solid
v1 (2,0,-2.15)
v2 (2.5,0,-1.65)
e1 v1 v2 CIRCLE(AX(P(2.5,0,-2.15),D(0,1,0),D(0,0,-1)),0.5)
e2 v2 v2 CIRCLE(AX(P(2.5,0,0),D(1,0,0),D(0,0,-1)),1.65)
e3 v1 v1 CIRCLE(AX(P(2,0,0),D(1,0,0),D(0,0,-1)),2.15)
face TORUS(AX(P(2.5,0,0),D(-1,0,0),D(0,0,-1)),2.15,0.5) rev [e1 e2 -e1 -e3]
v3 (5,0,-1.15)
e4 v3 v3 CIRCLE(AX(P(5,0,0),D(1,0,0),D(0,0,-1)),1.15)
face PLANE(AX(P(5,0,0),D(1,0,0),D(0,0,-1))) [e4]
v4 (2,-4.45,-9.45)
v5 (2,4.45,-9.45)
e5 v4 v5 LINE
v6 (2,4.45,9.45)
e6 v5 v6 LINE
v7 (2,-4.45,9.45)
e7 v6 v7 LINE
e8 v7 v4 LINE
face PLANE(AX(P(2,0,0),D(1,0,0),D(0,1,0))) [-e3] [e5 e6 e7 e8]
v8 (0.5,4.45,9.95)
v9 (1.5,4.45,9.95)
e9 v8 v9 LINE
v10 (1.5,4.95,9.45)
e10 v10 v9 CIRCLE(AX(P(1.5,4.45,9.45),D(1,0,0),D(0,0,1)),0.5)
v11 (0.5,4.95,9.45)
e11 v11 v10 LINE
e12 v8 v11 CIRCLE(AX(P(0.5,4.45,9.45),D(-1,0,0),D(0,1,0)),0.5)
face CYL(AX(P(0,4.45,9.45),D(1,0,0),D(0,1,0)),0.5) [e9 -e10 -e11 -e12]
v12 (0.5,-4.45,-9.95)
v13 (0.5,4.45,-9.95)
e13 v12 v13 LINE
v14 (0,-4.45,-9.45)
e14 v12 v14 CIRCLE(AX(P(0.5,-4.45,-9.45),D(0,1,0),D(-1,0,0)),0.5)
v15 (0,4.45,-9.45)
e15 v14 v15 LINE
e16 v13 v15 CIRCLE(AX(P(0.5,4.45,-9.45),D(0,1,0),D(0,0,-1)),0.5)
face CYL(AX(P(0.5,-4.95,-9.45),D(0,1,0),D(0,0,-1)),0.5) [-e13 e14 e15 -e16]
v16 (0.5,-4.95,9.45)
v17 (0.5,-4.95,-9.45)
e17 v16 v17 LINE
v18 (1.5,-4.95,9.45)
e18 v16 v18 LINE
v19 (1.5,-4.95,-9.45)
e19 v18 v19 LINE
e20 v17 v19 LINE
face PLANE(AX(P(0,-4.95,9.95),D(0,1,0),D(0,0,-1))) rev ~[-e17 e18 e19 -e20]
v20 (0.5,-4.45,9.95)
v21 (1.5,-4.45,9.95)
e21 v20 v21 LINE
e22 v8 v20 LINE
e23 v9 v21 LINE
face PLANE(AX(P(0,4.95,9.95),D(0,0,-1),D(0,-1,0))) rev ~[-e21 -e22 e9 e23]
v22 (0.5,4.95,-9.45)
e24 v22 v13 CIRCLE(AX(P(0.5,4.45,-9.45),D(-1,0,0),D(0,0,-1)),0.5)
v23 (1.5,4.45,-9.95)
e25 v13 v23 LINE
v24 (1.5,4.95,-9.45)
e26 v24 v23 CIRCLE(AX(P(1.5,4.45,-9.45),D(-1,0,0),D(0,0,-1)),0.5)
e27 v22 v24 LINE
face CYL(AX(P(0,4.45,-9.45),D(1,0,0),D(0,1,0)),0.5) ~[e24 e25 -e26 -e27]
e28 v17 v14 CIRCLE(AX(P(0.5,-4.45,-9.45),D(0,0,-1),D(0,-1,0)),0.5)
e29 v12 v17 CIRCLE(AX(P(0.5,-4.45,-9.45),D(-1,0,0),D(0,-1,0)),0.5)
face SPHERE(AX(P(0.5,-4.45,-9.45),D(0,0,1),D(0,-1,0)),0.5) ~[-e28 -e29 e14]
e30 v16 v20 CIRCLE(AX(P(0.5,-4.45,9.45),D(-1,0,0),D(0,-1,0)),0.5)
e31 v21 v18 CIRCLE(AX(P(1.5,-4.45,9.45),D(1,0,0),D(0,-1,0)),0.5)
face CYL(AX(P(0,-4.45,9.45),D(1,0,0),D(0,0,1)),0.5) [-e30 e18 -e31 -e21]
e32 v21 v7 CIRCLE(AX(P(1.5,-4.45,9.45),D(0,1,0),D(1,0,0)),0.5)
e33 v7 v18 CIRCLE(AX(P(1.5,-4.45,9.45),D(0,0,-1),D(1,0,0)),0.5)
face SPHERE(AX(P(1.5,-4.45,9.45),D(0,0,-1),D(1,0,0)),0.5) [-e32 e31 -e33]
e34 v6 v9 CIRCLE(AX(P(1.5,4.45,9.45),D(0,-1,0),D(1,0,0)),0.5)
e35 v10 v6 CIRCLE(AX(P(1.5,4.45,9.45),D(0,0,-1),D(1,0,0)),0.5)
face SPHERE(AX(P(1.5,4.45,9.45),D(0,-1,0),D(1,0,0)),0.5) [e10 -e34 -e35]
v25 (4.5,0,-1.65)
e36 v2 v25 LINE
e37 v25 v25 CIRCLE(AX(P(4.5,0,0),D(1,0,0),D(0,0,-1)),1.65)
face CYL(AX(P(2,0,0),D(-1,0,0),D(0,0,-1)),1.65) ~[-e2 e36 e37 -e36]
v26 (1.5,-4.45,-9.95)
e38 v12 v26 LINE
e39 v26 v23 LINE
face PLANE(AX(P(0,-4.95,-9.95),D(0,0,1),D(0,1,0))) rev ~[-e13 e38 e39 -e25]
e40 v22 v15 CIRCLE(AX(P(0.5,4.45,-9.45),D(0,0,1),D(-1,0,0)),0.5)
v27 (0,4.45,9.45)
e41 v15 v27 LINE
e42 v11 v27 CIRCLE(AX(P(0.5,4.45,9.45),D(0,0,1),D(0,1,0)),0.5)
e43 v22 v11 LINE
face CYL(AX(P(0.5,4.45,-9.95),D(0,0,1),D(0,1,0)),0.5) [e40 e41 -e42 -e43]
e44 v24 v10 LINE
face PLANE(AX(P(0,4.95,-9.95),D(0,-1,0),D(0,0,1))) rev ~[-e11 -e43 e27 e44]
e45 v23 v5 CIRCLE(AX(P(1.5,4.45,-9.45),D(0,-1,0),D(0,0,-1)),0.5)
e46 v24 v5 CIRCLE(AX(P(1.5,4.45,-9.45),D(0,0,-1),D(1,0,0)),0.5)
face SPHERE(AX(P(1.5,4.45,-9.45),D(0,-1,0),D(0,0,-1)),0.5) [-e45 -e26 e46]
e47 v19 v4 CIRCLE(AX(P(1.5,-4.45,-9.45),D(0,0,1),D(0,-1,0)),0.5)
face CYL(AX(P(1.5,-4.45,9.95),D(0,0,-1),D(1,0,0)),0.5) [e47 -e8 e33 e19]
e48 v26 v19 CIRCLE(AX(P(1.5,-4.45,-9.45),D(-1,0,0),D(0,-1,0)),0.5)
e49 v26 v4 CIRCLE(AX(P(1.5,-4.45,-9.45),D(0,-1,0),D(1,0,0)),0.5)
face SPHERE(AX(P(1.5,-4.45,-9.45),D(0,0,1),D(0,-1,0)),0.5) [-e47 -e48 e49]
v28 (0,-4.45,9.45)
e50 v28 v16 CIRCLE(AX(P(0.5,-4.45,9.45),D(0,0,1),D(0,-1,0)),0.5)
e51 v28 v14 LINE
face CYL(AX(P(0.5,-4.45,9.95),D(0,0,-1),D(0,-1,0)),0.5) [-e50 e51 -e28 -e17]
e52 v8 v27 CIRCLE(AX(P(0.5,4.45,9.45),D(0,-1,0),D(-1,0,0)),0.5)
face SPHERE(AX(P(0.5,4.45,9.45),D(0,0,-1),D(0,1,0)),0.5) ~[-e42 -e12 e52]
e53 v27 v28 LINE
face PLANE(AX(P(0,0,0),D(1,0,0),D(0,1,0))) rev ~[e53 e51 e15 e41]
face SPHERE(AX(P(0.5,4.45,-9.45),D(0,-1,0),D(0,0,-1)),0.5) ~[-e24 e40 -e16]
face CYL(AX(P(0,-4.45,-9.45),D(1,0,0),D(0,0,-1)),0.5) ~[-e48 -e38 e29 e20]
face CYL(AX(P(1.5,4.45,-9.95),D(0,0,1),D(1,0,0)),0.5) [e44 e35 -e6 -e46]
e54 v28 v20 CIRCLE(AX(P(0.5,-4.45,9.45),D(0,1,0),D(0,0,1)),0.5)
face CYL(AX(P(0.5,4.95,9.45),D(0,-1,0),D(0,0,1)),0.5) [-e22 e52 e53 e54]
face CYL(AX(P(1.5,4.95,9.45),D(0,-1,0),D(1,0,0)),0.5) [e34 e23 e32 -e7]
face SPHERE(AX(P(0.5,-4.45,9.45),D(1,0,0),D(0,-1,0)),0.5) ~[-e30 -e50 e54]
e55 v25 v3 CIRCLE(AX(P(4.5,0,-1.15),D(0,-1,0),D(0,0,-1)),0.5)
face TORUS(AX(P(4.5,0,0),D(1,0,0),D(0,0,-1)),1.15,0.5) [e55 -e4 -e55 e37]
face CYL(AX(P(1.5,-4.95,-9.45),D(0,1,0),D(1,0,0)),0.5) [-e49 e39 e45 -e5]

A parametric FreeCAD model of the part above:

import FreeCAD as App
import Part
import Sketcher

V = App.Vector
Q = App.Units.Quantity


def edges_at(feature, points):
    """Names of the edges that pass closest to the given points."""
    edges = feature.Shape.Edges
    near = lambda p: min(range(len(edges)), key=lambda i: edges[i].distToShape(Part.Vertex(*p))[0])
    return sorted({f"Edge{near(p) + 1}" for p in points})


def add_polygon(sketch, points):
    """Adds a closed chain of lines whose ends are joined by coincident constraints."""
    first, n = sketch.GeometryCount, len(points)
    for a, b in zip(points, points[1:] + points[:1]):
        sketch.addGeometry(Part.LineSegment(App.Vector(*a, 0), App.Vector(*b, 0)), False)
    for i in range(n):
        sketch.addConstraint(Sketcher.Constraint("Coincident", first + i, 2, first + (i + 1) % n, 1))

doc = App.newDocument("Part")
body = doc.addObject("PartDesign::Body", "Body")

# Sketch on YZ plane
sketch1 = body.newObject("Sketcher::SketchObject", "Sketch")
sketch1.AttachmentSupport = (doc.getObject("YZ_Plane"), [""])
sketch1.MapMode = "FlatFace"
add_polygon(sketch1, [(4.95, -9.95), (4.95, 9.95), (-4.95, 9.95), (-4.95, -9.95)])  # lines 0-3
sketch1.addConstraint([
    Sketcher.Constraint("Vertical", 0),
    Sketcher.Constraint("Horizontal", 1),
    Sketcher.Constraint("Vertical", 2),
    Sketcher.Constraint("Horizontal", 3),
    Sketcher.Constraint("Symmetric", 0, 2, 2, 2, -1, 1),
    Sketcher.Constraint("DistanceX", 1, 2, 1, 1, Q("9.9 mm")),
    Sketcher.Constraint("DistanceY", 0, 1, 0, 2, Q("19.9 mm")),
])
pad1 = body.newObject("PartDesign::Pad", "Pad")
pad1.Profile = sketch1
pad1.Length = 2

# Sketch on YZ plane
sketch2 = body.newObject("Sketcher::SketchObject", "Sketch001")
sketch2.AttachmentSupport = (doc.getObject("YZ_Plane"), [""])
sketch2.MapMode = "FlatFace"
sketch2.AttachmentOffset = App.Placement(V(0, 0, 2), App.Rotation())
sketch2.addGeometry(Part.Circle(V(0, 0, 0), V(0, 0, 1), 1.65), False)
sketch2.addConstraint([
    Sketcher.Constraint("Coincident", 0, 3, -1, 1),
    Sketcher.Constraint("Diameter", 0, Q("3.3 mm")),
])
pad2 = body.newObject("PartDesign::Pad", "Pad001")
pad2.Profile = sketch2
pad2.Length = 3
doc.recompute()

fillet = body.newObject("PartDesign::Fillet", "Fillet")
fillet.Base = (pad2, edges_at(pad2, [(2, 0, 1.65), (5, 0, 1.65)]))
fillet.Radius = 0.5
doc.recompute()

fillet2 = body.newObject("PartDesign::Fillet", "Fillet001")
fillet2.Base = (fillet, edges_at(fillet, [
    (2, -4.95, 0),
    (2, 0, 9.95),
    (1, -4.95, 9.95),
    (0, -4.95, 0),
    (1, -4.95, -9.95),
    (2, 0, -9.95),
    (0, 0, -9.95),
    (1, 4.95, -9.95),
    (0, 4.95, 0),
    (2, 4.95, 0),
    (1, 4.95, 9.95),
    (0, 0, 9.95),
]))
fillet2.Radius = 0.5

doc.recompute()
